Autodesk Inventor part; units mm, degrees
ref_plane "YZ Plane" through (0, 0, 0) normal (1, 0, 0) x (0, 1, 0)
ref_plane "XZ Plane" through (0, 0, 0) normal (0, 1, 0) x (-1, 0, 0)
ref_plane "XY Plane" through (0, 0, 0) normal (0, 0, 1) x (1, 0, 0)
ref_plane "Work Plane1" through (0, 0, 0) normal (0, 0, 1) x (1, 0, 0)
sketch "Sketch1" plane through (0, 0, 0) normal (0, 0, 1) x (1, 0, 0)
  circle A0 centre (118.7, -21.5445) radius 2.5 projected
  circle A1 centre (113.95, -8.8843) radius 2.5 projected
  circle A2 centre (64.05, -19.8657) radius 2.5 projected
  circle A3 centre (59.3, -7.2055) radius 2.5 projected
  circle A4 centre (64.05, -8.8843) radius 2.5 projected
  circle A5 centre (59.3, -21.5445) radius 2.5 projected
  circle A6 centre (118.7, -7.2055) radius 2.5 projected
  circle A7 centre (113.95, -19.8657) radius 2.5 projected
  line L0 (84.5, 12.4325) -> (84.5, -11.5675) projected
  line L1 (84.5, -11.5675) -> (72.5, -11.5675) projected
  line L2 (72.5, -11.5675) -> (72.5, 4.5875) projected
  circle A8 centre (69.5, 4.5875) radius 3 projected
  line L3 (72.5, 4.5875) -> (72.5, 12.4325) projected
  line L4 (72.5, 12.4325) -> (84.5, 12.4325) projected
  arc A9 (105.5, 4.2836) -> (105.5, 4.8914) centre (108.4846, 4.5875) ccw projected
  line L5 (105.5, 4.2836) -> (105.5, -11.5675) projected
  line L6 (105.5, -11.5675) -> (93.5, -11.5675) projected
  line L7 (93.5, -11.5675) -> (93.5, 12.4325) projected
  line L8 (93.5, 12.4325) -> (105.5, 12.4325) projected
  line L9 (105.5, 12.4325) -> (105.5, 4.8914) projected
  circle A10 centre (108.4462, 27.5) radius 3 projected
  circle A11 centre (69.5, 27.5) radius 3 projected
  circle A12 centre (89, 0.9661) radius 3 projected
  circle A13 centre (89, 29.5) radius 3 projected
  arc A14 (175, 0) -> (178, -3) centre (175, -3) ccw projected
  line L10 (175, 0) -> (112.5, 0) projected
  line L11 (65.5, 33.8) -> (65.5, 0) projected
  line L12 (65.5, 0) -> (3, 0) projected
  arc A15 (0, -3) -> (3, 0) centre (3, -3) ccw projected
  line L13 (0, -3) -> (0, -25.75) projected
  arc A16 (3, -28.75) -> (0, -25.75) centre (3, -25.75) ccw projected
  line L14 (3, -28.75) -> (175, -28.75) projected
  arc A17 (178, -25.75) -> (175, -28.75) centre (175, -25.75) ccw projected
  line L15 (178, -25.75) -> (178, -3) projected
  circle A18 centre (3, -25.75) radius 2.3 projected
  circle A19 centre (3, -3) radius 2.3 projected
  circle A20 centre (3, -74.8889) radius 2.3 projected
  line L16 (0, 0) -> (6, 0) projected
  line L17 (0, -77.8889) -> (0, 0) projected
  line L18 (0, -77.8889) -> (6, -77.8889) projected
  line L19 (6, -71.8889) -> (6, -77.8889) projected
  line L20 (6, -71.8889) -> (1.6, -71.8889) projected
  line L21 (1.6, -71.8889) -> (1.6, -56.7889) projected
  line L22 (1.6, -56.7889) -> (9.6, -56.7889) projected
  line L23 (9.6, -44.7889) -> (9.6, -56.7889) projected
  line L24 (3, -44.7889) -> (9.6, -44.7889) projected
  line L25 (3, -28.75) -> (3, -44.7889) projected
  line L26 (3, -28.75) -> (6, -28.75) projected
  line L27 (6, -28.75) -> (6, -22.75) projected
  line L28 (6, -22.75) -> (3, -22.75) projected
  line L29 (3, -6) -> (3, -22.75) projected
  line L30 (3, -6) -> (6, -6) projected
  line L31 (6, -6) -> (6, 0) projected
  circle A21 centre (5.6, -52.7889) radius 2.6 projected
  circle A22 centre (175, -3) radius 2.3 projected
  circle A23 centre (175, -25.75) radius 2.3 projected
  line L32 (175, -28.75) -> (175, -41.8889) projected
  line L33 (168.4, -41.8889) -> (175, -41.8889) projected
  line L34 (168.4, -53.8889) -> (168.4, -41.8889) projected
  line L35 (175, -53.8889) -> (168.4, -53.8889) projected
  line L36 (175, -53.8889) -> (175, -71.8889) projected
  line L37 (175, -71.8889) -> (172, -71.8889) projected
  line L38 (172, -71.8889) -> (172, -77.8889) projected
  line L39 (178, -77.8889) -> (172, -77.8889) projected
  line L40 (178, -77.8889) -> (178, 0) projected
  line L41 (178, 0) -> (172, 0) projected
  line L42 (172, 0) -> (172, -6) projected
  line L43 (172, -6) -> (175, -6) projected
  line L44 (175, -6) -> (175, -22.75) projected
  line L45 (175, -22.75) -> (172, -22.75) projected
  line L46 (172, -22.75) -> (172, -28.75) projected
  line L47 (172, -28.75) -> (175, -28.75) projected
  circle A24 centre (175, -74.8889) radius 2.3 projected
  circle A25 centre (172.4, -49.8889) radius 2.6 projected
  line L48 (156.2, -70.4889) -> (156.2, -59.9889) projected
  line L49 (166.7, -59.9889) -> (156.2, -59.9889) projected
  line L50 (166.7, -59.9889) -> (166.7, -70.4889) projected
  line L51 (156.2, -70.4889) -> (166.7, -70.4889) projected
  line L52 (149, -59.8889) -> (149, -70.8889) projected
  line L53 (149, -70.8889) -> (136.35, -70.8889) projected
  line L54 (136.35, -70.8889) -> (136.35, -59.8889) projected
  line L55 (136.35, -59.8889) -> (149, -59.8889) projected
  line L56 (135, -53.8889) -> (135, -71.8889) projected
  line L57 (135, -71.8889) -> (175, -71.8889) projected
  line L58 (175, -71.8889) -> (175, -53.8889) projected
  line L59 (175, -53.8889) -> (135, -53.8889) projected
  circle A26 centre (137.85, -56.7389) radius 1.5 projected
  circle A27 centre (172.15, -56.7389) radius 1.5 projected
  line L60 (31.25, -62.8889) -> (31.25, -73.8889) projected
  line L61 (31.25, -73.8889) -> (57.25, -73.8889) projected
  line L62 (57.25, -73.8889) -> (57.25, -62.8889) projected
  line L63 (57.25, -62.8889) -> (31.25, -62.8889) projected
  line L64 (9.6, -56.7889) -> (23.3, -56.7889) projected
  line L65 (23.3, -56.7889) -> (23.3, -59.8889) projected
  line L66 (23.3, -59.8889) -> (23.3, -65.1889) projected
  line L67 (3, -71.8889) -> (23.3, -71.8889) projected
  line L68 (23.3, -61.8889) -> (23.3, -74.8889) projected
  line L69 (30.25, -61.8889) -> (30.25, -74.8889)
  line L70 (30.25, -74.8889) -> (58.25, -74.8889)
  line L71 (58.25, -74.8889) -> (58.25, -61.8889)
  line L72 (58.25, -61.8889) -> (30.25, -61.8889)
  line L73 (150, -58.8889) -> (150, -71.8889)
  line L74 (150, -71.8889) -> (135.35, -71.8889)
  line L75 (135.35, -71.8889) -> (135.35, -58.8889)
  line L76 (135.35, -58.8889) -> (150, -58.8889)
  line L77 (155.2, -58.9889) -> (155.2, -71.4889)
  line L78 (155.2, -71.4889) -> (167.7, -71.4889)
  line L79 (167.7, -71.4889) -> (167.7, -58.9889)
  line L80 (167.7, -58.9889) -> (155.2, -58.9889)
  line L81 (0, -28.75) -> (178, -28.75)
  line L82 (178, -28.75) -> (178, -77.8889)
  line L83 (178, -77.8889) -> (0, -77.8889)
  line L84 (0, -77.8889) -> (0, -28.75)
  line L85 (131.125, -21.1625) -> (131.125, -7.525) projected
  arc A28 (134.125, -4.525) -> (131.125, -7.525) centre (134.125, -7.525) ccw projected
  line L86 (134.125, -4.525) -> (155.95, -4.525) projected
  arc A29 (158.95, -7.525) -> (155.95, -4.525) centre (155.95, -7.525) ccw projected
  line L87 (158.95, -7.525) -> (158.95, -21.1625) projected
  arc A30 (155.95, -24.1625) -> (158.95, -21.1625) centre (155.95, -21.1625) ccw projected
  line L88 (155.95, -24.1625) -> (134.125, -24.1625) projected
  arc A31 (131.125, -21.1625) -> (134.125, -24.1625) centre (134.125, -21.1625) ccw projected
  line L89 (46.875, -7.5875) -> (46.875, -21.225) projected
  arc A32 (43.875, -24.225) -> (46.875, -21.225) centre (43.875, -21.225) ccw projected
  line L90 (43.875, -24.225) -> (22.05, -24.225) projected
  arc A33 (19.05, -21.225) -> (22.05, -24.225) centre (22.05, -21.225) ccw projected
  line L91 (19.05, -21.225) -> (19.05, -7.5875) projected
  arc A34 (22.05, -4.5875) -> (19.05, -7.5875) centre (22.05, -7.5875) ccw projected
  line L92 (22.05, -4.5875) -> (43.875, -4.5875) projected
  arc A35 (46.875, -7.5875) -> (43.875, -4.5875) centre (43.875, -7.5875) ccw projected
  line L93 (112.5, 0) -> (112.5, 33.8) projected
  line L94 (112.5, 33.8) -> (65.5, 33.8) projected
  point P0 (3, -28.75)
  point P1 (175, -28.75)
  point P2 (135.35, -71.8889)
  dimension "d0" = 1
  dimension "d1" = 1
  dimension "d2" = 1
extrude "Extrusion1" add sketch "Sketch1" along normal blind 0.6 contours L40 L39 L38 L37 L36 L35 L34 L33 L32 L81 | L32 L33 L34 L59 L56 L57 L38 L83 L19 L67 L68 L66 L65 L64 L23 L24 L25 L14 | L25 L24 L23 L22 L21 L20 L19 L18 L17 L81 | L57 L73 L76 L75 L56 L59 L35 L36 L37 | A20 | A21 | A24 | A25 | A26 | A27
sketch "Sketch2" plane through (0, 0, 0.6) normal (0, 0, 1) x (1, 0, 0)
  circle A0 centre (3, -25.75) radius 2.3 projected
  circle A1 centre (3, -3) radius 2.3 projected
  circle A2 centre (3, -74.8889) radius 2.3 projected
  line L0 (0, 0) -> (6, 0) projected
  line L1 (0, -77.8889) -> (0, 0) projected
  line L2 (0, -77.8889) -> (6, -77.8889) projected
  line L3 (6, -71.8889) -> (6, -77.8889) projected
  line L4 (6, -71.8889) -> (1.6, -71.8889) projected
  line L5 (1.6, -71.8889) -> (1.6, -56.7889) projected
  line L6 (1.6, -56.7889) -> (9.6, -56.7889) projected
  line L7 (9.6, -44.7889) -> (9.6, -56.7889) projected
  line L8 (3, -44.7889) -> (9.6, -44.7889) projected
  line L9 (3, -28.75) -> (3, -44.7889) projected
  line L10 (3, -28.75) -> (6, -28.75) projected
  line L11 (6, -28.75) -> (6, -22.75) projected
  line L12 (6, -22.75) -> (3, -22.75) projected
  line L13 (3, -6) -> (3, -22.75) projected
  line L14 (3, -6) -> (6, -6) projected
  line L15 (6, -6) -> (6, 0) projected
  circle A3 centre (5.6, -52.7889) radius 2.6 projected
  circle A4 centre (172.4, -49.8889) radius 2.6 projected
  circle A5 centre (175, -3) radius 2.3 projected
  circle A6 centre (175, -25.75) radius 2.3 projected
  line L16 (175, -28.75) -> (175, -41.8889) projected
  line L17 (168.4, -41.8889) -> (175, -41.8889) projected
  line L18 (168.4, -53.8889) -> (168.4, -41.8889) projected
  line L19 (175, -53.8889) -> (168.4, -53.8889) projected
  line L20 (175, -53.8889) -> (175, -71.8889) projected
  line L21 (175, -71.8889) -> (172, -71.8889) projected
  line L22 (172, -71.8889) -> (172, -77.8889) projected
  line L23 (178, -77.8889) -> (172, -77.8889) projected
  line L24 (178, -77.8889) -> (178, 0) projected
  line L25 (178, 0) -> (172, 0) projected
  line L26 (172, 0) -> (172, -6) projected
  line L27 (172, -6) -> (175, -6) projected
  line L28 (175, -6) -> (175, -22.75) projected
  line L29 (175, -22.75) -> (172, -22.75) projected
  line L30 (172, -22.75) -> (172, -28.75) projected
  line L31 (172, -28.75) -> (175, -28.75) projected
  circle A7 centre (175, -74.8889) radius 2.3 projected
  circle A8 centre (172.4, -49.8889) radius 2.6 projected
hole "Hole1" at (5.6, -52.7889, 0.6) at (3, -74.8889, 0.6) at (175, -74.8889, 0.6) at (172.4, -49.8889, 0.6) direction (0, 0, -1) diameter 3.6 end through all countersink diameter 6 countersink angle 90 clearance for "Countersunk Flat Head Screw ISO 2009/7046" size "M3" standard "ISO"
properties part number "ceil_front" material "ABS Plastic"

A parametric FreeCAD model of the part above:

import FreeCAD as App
import Part
import Sketcher
from FreeCAD import Vector

doc = App.newDocument("Part")
body = doc.addObject("PartDesign::Body", "Body")

# Sketch on XY plane
sketch1 = body.newObject("Sketcher::SketchObject", "Sketch")
sketch1.AttachmentSupport = (doc.getObject("XY_Plane"), [""])
sketch1.MapMode = "FlatFace"
sketch1.addGeometry([
    Part.LineSegment(Vector(178, -78, 0), Vector(178, -29, 0)),  # 0
    Part.LineSegment(Vector(178, -29, 0), Vector(0, -29, 0)),  # 1
    Part.LineSegment(Vector(0, -29, 0), Vector(0, -78, 0)),  # 2
    Part.LineSegment(Vector(0, -78, 0), Vector(178, -78, 0)),  # 3
    Part.LineSegment(Vector(30, -75, 0), Vector(30, -62, 0)),  # 4
    Part.LineSegment(Vector(30, -62, 0), Vector(58, -62, 0)),  # 5
    Part.LineSegment(Vector(58, -62, 0), Vector(58, -75, 0)),  # 6
    Part.LineSegment(Vector(58, -75, 0), Vector(30, -75, 0)),  # 7
    Part.LineSegment(Vector(150, -72, 0), Vector(135, -72, 0)),  # 8
    Part.LineSegment(Vector(135, -72, 0), Vector(135, -59, 0)),  # 9
    Part.LineSegment(Vector(135, -59, 0), Vector(150, -59, 0)),  # 10
    Part.LineSegment(Vector(150, -59, 0), Vector(150, -72, 0)),  # 11
    Part.LineSegment(Vector(23, -72, 0), Vector(2, -72, 0)),  # 12
    Part.LineSegment(Vector(2, -72, 0), Vector(2, -57, 0)),  # 13
    Part.LineSegment(Vector(2, -57, 0), Vector(23, -57, 0)),  # 14
    Part.LineSegment(Vector(23, -57, 0), Vector(23, -72, 0)),  # 15
    Part.LineSegment(Vector(155, -71, 0), Vector(155, -59, 0)),  # 16
    Part.LineSegment(Vector(155, -59, 0), Vector(168, -59, 0)),  # 17
    Part.LineSegment(Vector(168, -59, 0), Vector(168, -71, 0)),  # 18
    Part.LineSegment(Vector(168, -71, 0), Vector(155, -71, 0)),  # 19
], False)
sketch1.addConstraint([
    Sketcher.Constraint("Coincident", 0, 2, 1, 1),
    Sketcher.Constraint("Coincident", 1, 2, 2, 1),
    Sketcher.Constraint("Coincident", 2, 2, 3, 1),
    Sketcher.Constraint("Coincident", 3, 2, 0, 1),
    Sketcher.Constraint("Coincident", 4, 2, 5, 1),
    Sketcher.Constraint("Coincident", 5, 2, 6, 1),
    Sketcher.Constraint("Coincident", 6, 2, 7, 1),
    Sketcher.Constraint("Coincident", 7, 2, 4, 1),
    Sketcher.Constraint("Coincident", 8, 2, 9, 1),
    Sketcher.Constraint("Coincident", 9, 2, 10, 1),
    Sketcher.Constraint("Coincident", 10, 2, 11, 1),
    Sketcher.Constraint("Coincident", 11, 2, 8, 1),
    Sketcher.Constraint("Coincident", 12, 2, 13, 1),
    Sketcher.Constraint("Coincident", 13, 2, 14, 1),
    Sketcher.Constraint("Coincident", 14, 2, 15, 1),
    Sketcher.Constraint("Coincident", 15, 2, 12, 1),
    Sketcher.Constraint("Coincident", 16, 2, 17, 1),
    Sketcher.Constraint("Coincident", 17, 2, 18, 1),
    Sketcher.Constraint("Coincident", 18, 2, 19, 1),
    Sketcher.Constraint("Coincident", 19, 2, 16, 1),
    Sketcher.Constraint("Vertical", 0),
    Sketcher.Constraint("Horizontal", 1),
    Sketcher.Constraint("Vertical", 2),
    Sketcher.Constraint("Horizontal", 3),
    Sketcher.Constraint("Vertical", 4),
    Sketcher.Constraint("Horizontal", 5),
    Sketcher.Constraint("Vertical", 6),
    Sketcher.Constraint("Horizontal", 7),
    Sketcher.Constraint("Horizontal", 8),
    Sketcher.Constraint("Vertical", 9),
    Sketcher.Constraint("Horizontal", 10),
    Sketcher.Constraint("Vertical", 11),
    Sketcher.Constraint("Horizontal", 12),
    Sketcher.Constraint("Vertical", 13),
    Sketcher.Constraint("Horizontal", 14),
    Sketcher.Constraint("Vertical", 15),
    Sketcher.Constraint("Vertical", 16),
    Sketcher.Constraint("Horizontal", 17),
    Sketcher.Constraint("Vertical", 18),
    Sketcher.Constraint("Horizontal", 19),
    Sketcher.Constraint("PointOnObject", 1, 2, -2),
    Sketcher.Constraint("Horizontal", 11, 2, 12, 2),
    Sketcher.Constraint("Equal", 6, 9),
    Sketcher.Constraint("Equal", 19, 16),
    Sketcher.Constraint("DistanceX", 1, 2, 1, 1, 178.0),
    Sketcher.Constraint("DistanceX", 5, 1, 5, 2, 28.0),
    Sketcher.Constraint("DistanceY", 4, 1, 4, 2, 13.0),
    Sketcher.Constraint("DistanceX", 12, 2, 12, 1, 21.7),
    Sketcher.Constraint("DistanceX", 17, 1, 17, 2, 12.5),
    Sketcher.Constraint("DistanceY", 13, 1, 13, 2, 15.1),
    Sketcher.Constraint("DistanceX", -1, 1, 10, 2, 150.0),
    Sketcher.Constraint("DistanceY", 2, 2, 4, 2, 16.0),
    Sketcher.Constraint("DistanceY", 3, 2, 8, 2, 6.0),
    Sketcher.Constraint("DistanceX", 8, 2, 8, 1, 14.65),
    Sketcher.Constraint("DistanceX", -1, 1, 12, 2, 1.6),
    Sketcher.Constraint("DistanceX", -1, 1, 16, 2, 155.2),
    Sketcher.Constraint("DistanceX", 6, 2, 8, 2, 77.1),
    Sketcher.Constraint("DistanceY", 16, 2, 10, 2, 0.1),
    Sketcher.Constraint("DistanceY", 0, 1, 0, 2, 49.139),
    Sketcher.Constraint("DistanceY", 0, 2, -1, 1, 28.75),
])
pad1 = body.newObject("PartDesign::Pad", "Pad")
pad1.Profile = sketch1
pad1.Length = 0.6

# Sketch on XY plane
sketch2 = body.newObject("Sketcher::SketchObject", "Sketch001")
sketch2.AttachmentSupport = (doc.getObject("XY_Plane"), [""])
sketch2.MapMode = "FlatFace"
sketch2.AttachmentOffset = App.Placement(Vector(0, 0, 0.6), App.Rotation())
sketch2.addGeometry([
    Part.Circle(Vector(5.6, -52.8, 0), Vector(0, 0, 1), 1.8),
    Part.Circle(Vector(3, -74.9, 0), Vector(0, 0, 1), 1.8),
    Part.Circle(Vector(175, -74.9, 0), Vector(0, 0, 1), 1.8),
    Part.Circle(Vector(172.4, -49.9, 0), Vector(0, 0, 1), 1.8),
], False)
sketch2.addConstraint([
    Sketcher.Constraint("Equal", 0, 1),
    Sketcher.Constraint("Equal", 1, 2),
    Sketcher.Constraint("Equal", 2, 3),
    Sketcher.Constraint("Horizontal", 1, 3, 2, 3),
    Sketcher.Constraint("Diameter", 0, 3.6),
    Sketcher.Constraint("DistanceX", -1, 1, 1, 3, 3.0),
    Sketcher.Constraint("DistanceX", -1, 1, 2, 3, 175.0),
    Sketcher.Constraint("DistanceY", 2, 3, 3, 3, 25.0),
    Sketcher.Constraint("DistanceX", -1, 1, 0, 3, 5.6),
    Sketcher.Constraint("DistanceX", -1, 1, 3, 3, 172.4),
    Sketcher.Constraint("DistanceY", 1, 3, 0, 3, 22.1),
    Sketcher.Constraint("DistanceY", 0, 3, -1, 1, 52.789),
])
doc.recompute()
hole = body.newObject("PartDesign::Hole", "Hole")
hole.Profile = sketch2
hole.ThreadType = "None"
hole.Diameter = 3.6
hole.DepthType = "ThroughAll"
hole.HoleCutType = "Countersink"
hole.HoleCutDiameter = 6
hole.HoleCutCountersinkAngle = 90

doc.recompute()
